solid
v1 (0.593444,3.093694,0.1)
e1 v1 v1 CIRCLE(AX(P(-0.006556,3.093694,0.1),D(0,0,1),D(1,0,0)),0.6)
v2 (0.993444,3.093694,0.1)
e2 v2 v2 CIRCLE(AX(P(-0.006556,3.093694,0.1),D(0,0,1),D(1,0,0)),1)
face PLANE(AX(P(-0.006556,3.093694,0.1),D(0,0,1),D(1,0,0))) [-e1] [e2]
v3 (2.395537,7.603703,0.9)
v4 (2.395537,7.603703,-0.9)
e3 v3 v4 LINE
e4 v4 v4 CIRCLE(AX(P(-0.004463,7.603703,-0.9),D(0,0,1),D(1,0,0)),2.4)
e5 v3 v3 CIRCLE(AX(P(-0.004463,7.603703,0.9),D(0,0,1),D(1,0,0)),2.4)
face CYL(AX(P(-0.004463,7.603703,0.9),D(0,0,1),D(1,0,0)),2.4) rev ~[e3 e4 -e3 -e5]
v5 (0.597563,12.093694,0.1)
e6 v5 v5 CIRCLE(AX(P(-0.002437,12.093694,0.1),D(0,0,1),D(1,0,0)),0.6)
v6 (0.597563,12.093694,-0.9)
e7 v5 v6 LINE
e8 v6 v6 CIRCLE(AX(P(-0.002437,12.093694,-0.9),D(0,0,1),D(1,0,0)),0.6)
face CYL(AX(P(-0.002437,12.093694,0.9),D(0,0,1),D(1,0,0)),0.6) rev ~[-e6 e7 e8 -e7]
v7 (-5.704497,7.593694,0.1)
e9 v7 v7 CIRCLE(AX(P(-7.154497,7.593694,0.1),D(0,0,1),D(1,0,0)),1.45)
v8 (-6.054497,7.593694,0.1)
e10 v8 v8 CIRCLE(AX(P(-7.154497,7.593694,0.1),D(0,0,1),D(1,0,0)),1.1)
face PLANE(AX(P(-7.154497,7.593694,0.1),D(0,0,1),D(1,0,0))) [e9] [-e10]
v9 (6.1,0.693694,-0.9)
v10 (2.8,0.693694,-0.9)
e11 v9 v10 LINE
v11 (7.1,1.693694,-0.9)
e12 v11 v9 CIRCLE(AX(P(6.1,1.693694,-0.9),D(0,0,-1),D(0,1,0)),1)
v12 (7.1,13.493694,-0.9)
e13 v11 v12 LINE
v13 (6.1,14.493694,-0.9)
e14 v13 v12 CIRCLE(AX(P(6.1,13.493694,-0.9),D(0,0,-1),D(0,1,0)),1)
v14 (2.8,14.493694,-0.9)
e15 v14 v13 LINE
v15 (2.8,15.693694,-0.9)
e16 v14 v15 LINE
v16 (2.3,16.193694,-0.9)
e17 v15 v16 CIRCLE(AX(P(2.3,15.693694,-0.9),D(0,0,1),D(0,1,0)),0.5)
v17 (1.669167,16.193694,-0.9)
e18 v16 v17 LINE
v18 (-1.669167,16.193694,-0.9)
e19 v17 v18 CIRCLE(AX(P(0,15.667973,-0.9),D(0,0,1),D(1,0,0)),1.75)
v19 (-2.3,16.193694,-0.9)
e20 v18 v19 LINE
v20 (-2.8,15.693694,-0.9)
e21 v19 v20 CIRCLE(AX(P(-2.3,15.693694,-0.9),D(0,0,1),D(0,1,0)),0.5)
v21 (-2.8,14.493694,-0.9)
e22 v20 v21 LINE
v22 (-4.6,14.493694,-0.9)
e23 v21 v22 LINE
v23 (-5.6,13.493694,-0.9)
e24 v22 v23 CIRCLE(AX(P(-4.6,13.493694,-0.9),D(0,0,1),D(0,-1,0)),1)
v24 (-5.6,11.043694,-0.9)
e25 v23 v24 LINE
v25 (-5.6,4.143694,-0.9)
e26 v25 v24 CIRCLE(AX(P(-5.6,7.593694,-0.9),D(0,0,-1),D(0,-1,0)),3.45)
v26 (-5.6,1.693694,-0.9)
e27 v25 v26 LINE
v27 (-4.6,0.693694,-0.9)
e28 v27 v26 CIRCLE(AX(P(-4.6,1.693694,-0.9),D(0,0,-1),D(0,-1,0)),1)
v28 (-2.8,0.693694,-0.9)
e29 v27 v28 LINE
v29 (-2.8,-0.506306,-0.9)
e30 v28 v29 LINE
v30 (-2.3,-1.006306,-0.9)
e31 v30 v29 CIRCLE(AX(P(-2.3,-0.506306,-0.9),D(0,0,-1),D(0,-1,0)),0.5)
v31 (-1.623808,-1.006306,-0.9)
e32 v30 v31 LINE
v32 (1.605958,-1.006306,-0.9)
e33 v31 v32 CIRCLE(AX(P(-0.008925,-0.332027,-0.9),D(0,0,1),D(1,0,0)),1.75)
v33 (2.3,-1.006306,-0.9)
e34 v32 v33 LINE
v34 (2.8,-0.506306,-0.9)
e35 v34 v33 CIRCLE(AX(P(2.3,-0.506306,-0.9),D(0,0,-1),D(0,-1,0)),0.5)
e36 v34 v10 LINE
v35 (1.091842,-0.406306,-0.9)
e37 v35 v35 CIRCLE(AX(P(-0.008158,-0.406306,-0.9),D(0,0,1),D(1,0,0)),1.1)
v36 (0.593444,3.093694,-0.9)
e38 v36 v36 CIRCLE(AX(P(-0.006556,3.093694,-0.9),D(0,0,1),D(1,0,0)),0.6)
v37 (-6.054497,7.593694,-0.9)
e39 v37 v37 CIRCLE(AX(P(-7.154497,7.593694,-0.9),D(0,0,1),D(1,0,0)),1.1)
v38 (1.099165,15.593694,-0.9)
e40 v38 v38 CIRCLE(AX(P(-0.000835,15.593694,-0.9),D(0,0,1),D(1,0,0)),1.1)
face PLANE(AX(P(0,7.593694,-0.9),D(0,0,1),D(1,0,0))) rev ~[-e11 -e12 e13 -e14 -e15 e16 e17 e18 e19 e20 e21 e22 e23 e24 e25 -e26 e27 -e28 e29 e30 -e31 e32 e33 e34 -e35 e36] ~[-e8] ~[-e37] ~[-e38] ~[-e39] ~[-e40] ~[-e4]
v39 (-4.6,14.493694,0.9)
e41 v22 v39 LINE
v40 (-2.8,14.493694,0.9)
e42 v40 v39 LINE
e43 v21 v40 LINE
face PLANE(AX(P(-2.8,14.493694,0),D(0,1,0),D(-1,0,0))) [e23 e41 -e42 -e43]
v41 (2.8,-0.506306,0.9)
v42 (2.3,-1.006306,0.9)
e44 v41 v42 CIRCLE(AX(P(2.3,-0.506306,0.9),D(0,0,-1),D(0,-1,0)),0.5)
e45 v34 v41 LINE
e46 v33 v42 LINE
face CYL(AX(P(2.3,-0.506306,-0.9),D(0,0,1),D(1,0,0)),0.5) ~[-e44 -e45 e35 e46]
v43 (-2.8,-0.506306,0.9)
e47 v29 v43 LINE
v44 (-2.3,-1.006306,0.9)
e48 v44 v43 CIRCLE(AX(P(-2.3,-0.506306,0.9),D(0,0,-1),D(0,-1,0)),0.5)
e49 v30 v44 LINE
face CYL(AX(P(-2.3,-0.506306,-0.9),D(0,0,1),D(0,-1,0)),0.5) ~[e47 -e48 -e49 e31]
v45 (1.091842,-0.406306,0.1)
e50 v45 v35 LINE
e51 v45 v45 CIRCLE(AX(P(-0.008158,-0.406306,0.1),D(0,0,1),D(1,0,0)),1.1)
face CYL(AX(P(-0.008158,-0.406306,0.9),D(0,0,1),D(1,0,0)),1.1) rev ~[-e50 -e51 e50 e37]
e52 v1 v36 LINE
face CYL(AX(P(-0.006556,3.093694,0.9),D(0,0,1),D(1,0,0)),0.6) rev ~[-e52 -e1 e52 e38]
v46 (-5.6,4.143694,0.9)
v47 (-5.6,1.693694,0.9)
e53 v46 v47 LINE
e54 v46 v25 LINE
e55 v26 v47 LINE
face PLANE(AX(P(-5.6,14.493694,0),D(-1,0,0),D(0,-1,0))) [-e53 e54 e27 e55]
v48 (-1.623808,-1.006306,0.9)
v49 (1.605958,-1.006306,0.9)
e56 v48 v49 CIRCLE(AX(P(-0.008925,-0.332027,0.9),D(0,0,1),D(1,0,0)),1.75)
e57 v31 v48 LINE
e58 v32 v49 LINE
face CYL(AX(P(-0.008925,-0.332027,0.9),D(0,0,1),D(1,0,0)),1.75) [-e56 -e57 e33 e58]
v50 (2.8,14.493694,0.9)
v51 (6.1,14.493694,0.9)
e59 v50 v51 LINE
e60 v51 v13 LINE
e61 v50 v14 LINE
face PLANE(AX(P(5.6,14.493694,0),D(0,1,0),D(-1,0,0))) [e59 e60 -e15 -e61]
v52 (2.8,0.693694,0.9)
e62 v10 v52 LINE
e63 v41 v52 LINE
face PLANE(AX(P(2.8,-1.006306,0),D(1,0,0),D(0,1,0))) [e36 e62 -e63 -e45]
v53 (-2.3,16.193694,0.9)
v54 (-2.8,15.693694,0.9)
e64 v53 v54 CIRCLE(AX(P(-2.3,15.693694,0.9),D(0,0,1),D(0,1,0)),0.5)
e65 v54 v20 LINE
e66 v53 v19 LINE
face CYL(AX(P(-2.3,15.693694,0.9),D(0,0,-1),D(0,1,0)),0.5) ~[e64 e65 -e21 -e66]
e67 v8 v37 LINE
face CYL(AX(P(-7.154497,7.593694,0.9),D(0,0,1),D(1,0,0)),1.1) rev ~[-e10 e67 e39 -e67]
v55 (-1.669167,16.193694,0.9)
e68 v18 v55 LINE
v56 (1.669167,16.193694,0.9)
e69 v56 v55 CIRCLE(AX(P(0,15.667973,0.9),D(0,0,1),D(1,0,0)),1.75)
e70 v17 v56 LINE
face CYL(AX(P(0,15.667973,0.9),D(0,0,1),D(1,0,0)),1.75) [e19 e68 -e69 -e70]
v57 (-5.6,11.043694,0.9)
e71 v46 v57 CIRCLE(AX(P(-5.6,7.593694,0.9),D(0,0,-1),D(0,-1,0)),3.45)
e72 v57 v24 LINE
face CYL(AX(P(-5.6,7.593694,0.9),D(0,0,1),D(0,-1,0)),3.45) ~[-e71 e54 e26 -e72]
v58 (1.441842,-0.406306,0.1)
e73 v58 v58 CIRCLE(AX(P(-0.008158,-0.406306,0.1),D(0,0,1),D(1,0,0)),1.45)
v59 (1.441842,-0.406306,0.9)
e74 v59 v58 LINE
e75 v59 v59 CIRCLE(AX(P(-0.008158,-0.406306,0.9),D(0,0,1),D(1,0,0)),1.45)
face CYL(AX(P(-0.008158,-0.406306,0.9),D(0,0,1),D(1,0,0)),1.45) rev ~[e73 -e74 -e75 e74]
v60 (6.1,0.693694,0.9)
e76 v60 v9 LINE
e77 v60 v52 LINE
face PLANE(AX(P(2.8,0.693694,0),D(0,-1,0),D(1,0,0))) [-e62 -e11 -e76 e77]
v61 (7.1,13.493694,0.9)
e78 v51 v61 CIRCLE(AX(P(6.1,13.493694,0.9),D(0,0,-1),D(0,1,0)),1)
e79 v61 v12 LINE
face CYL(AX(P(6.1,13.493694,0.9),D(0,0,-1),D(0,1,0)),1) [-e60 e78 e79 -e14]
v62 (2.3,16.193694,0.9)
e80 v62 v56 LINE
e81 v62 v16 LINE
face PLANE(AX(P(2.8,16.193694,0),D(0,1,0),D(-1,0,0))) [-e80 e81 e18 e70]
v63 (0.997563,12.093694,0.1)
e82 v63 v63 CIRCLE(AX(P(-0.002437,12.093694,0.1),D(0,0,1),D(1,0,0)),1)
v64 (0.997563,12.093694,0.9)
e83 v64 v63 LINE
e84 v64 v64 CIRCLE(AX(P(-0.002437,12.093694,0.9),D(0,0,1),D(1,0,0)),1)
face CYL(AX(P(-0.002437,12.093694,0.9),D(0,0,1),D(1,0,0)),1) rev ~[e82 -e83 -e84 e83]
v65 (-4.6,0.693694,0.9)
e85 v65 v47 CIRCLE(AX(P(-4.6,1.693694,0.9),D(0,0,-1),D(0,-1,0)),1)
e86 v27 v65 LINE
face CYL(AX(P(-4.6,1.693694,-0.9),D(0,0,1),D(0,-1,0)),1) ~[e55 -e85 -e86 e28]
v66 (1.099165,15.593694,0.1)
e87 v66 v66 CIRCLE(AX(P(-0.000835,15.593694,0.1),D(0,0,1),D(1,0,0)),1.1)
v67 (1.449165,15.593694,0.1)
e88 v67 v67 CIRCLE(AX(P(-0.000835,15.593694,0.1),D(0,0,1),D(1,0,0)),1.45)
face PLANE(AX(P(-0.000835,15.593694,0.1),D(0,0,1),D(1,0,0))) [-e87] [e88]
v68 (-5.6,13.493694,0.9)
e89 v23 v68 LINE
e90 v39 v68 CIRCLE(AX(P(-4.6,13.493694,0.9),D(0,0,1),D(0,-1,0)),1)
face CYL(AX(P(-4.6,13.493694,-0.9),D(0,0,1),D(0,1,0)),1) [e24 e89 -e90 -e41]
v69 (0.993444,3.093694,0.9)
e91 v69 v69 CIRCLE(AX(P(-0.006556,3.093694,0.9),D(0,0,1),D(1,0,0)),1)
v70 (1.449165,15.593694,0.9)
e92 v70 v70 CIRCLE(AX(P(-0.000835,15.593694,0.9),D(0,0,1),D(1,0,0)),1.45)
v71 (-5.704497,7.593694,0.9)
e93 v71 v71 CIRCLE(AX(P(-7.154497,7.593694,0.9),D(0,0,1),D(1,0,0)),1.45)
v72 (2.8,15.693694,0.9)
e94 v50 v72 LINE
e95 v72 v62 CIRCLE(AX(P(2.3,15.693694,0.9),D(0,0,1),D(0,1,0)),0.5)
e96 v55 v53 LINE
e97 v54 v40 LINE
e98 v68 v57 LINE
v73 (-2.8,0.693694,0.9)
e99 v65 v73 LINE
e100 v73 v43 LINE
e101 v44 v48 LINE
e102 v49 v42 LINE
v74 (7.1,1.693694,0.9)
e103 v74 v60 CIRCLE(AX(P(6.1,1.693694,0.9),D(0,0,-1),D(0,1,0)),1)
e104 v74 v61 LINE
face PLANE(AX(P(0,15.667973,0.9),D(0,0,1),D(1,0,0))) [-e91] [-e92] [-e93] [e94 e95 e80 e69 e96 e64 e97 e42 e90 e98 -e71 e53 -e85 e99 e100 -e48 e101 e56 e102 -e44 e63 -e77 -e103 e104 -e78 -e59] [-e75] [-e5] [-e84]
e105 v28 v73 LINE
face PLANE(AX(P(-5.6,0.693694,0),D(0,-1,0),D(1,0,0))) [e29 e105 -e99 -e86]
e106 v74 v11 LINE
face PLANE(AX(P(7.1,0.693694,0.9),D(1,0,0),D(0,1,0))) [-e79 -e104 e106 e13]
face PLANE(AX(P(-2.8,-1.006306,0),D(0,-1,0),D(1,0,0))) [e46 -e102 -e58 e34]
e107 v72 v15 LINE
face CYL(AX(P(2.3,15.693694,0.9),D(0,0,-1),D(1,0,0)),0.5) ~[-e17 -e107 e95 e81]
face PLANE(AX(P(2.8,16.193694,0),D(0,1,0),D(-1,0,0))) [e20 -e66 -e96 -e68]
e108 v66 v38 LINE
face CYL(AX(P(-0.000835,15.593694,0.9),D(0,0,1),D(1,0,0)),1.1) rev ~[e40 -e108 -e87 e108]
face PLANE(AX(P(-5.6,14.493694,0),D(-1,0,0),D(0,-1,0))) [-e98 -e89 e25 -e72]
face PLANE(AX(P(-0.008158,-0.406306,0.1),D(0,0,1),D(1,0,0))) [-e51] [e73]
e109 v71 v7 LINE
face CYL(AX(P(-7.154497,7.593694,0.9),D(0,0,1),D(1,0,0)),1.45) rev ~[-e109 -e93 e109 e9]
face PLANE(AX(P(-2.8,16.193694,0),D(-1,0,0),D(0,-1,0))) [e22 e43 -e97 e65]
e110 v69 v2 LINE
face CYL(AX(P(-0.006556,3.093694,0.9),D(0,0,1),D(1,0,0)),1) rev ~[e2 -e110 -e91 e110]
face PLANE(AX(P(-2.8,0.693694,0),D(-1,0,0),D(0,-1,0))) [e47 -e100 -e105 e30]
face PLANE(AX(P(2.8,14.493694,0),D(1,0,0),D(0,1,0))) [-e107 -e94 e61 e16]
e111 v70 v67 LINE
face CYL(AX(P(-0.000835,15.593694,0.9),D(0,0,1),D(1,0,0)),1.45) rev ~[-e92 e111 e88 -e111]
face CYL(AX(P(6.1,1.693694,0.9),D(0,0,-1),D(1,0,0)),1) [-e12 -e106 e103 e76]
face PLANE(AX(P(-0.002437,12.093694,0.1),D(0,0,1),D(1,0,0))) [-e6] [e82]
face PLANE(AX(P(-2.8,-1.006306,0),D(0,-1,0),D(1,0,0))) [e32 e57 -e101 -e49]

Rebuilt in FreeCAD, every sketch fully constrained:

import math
import FreeCAD as App
import Part
import Sketcher


def edges_at(feature, points):
    """Names of the edges that pass closest to the given points."""
    edges = feature.Shape.Edges
    near = lambda p: min(range(len(edges)), key=lambda i: edges[i].distToShape(Part.Vertex(*p))[0])
    return sorted({f"Edge{near(p) + 1}" for p in points})


def add_polygon(sketch, points):
    """Adds a closed chain of lines whose ends are joined by coincident constraints."""
    first, n = sketch.GeometryCount, len(points)
    for a, b in zip(points, points[1:] + points[:1]):
        sketch.addGeometry(Part.LineSegment(App.Vector(*a, 0), App.Vector(*b, 0)), False)
    for i in range(n):
        sketch.addConstraint(Sketcher.Constraint("Coincident", first + i, 2, first + (i + 1) % n, 1))

doc = App.newDocument("Part")
body = doc.addObject("PartDesign::Body", "Body")

sketch1 = body.newObject("Sketcher::SketchObject", "Sketch")
sketch1.AttachmentSupport = (doc.getObject("XY_Plane"), [""])
sketch1.MapMode = "FlatFace"
add_polygon(sketch1, [(-2.8, 16.193694), (-2.8, 14.493694), (-5.6, 14.493694), (-5.6, 0.693694), (-2.8, 0.693694), (-2.8, -1.006306), (2.8, -1.006306), (2.8, 0.693694), (5.6, 0.693694), (5.6, 14.493694), (2.8, 14.493694), (2.8, 16.193694)])
sketch1.addConstraint([
    Sketcher.Constraint("Vertical", 0),
    Sketcher.Constraint("Horizontal", 1),
    Sketcher.Constraint("Vertical", 2),
    Sketcher.Constraint("Horizontal", 3),
    Sketcher.Constraint("Vertical", 4),
    Sketcher.Constraint("Horizontal", 5),
    Sketcher.Constraint("Vertical", 6),
    Sketcher.Constraint("Horizontal", 7),
    Sketcher.Constraint("Vertical", 8),
    Sketcher.Constraint("Horizontal", 9),
    Sketcher.Constraint("Vertical", 10),
    Sketcher.Constraint("Horizontal", 11),
    Sketcher.Constraint("Symmetric", 3, 2, 6, 2, -2),
    Sketcher.Constraint("Symmetric", 1, 2, 8, 2, -2),
    Sketcher.Constraint("Vertical", 0, 2, 3, 2),
    Sketcher.Constraint("Vertical", 6, 2, 9, 2),
    Sketcher.Constraint("Equal", 0, 4),
    Sketcher.Constraint("DistanceX", 1, 2, 1, 1, 2.8),
    Sketcher.Constraint("DistanceX", 5, 1, 5, 2, 5.6),
    Sketcher.Constraint("DistanceY", 0, 2, 0, 1, 1.7),
    Sketcher.Constraint("DistanceY", 2, 2, 2, 1, 13.8),
    Sketcher.Constraint("DistanceY", -1, 1, 0, 2, 14.493694),
])
pad1 = body.newObject("PartDesign::Pad", "Pad")
pad1.Profile = sketch1
pad1.Length = 1.8
pad1.Midplane = True

sketch2 = body.newObject("Sketcher::SketchObject", "Sketch001")
sketch2.AttachmentSupport = (doc.getObject("XY_Plane"), [""])
sketch2.MapMode = "FlatFace"
sketch2.AttachmentOffset = App.Placement(App.Vector(0, 0, 0.9), App.Rotation())
sketch2.addGeometry([
    Part.Circle(App.Vector(0, 15.667973, 0), App.Vector(0, 0, 1), 1.75),
    Part.Circle(App.Vector(-0.008925, -0.332027, 0), App.Vector(0, 0, 1), 1.75),
], False)
sketch2.addConstraint([
    Sketcher.Constraint("Equal", 0, 1),
    Sketcher.Constraint("PointOnObject", 0, 3, -2),
    Sketcher.Constraint("Diameter", 0, 3.5),
    Sketcher.Constraint("DistanceY", 1, 3, 0, 3, 16.0),
    Sketcher.Constraint("DistanceY", -1, 1, 0, 3, 15.667973),
    Sketcher.Constraint("DistanceX", 1, 3, -1, 1, 0.008925),
])
pad2 = body.newObject("PartDesign::Pad", "Pad001")
pad2.Profile = sketch2
pad2.Length = 1.8
pad2.Reversed = True

sketch3 = body.newObject("Sketcher::SketchObject", "Sketch002")
sketch3.AttachmentSupport = (doc.getObject("XY_Plane"), [""])
sketch3.MapMode = "FlatFace"
sketch3.AttachmentOffset = App.Placement(App.Vector(0, 0, 0.9), App.Rotation())
sketch3.addGeometry(Part.LineSegment(App.Vector(-5.6, 4.143694, 0), App.Vector(-5.6, 11.043694, 0)), False)
sketch3.addGeometry(Part.ArcOfCircle(Part.Circle(App.Vector(-5.6, 7.593694, 0), App.Vector(0, 0, 1), 3.45), math.radians(90), math.radians(270)), False)
add_polygon(sketch3, [(4.1, 14.493694), (4.1, 0.693694), (7.1, 0.693694), (7.1, 14.493694)])
sketch3.addConstraint([
    Sketcher.Constraint("Coincident", 0, 1, 1, 2),
    Sketcher.Constraint("Coincident", 1, 1, 0, 2),
    Sketcher.Constraint("Vertical", 0),
    Sketcher.Constraint("Vertical", 2),
    Sketcher.Constraint("Horizontal", 3),
    Sketcher.Constraint("Vertical", 4),
    Sketcher.Constraint("Horizontal", 5),
    Sketcher.Constraint("Vertical", 1, 3, 0, 1),
    Sketcher.Constraint("DistanceX", 3, 1, 3, 2, 3.0),
    Sketcher.Constraint("Radius", 1, 3.45),
    Sketcher.Constraint("DistanceY", 2, 2, 2, 1, 13.8),
    Sketcher.Constraint("DistanceX", 1, 3, -1, 1, 5.6),
    Sketcher.Constraint("DistanceX", -1, 1, 2, 2, 4.1),
    Sketcher.Constraint("DistanceY", 2, 2, 1, 3, 6.9),
    Sketcher.Constraint("DistanceY", -1, 1, 1, 3, 7.593694),
])
pad3 = body.newObject("PartDesign::Pad", "Pad002")
pad3.Profile = sketch3
pad3.Length = 1.8
pad3.Reversed = True

sketch4 = body.newObject("Sketcher::SketchObject", "Sketch003")
sketch4.AttachmentSupport = (doc.getObject("XY_Plane"), [""])
sketch4.MapMode = "FlatFace"
sketch4.AttachmentOffset = App.Placement(App.Vector(0, 0, 0.9), App.Rotation())
sketch4.addGeometry([
    Part.Circle(App.Vector(-7.154497, 7.593694, 0), App.Vector(0, 0, 1), 1.1),
    Part.Circle(App.Vector(-0.000835, 15.593694, 0), App.Vector(0, 0, 1), 1.1),
    Part.Circle(App.Vector(-0.008158, -0.406306, 0), App.Vector(0, 0, 1), 1.1),
    Part.Circle(App.Vector(-0.002437, 12.093694, 0), App.Vector(0, 0, 1), 0.6),
    Part.Circle(App.Vector(-0.006556, 3.093694, 0), App.Vector(0, 0, 1), 0.6),
], False)
sketch4.addConstraint([
    Sketcher.Constraint("Equal", 0, 1),
    Sketcher.Constraint("Equal", 1, 2),
    Sketcher.Constraint("Equal", 3, 4),
    Sketcher.Constraint("Diameter", 0, 2.2),
    Sketcher.Constraint("Diameter", 3, 1.2),
    Sketcher.Constraint("DistanceY", 0, 3, 1, 3, 8.0),
    Sketcher.Constraint("DistanceY", 2, 3, 0, 3, 8.0),
    Sketcher.Constraint("DistanceY", 4, 3, 3, 3, 9.0),
    Sketcher.Constraint("DistanceY", 3, 3, 1, 3, 3.5),
    Sketcher.Constraint("DistanceX", 3, 3, 1, 3, 0.001602),
    Sketcher.Constraint("DistanceX", 2, 3, 4, 3, 0.001602),
    Sketcher.Constraint("DistanceX", 2, 3, -1, 1, 0.008158),
    Sketcher.Constraint("DistanceX", 0, 3, 2, 3, 7.146339),
    Sketcher.Constraint("DistanceX", 0, 3, 3, 3, 7.15206),
    Sketcher.Constraint("DistanceY", -1, 1, 0, 3, 7.593694),
])
pocket1 = body.newObject("PartDesign::Pocket", "Pocket")
pocket1.Profile = sketch4
pocket1.Length = 1.8

sketch5 = body.newObject("Sketcher::SketchObject", "Sketch004")
sketch5.AttachmentSupport = (doc.getObject("XY_Plane"), [""])
sketch5.MapMode = "FlatFace"
sketch5.AttachmentOffset = App.Placement(App.Vector(0, 0, 0.9), App.Rotation())
sketch5.addGeometry(Part.Circle(App.Vector(-0.004463, 7.603703, 0), App.Vector(0, 0, 1), 2.4), False)
sketch5.addConstraint([
    Sketcher.Constraint("Diameter", 0, 4.8),
    Sketcher.Constraint("DistanceX", 0, 3, -1, 1, 0.004463),
    Sketcher.Constraint("DistanceY", -1, 1, 0, 3, 7.603703),
])
pocket2 = body.newObject("PartDesign::Pocket", "Pocket001")
pocket2.Profile = sketch5
pocket2.Length = 1.8

sketch6 = body.newObject("Sketcher::SketchObject", "Sketch005")
sketch6.AttachmentSupport = (doc.getObject("XY_Plane"), [""])
sketch6.MapMode = "FlatFace"
sketch6.AttachmentOffset = App.Placement(App.Vector(0, 0, 0.9), App.Rotation())
sketch6.addGeometry([
    Part.Circle(App.Vector(-0.002437, 12.093694, 0), App.Vector(0, 0, 1), 1),
    Part.Circle(App.Vector(-0.006556, 3.093694, 0), App.Vector(0, 0, 1), 1),
    Part.Circle(App.Vector(-0.000835, 15.593694, 0), App.Vector(0, 0, 1), 1.45),
    Part.Circle(App.Vector(-0.008158, -0.406306, 0), App.Vector(0, 0, 1), 1.45),
    Part.Circle(App.Vector(-7.154497, 7.593694, 0), App.Vector(0, 0, 1), 1.45),
], False)
sketch6.addConstraint([
    Sketcher.Constraint("Equal", 0, 1),
    Sketcher.Constraint("Equal", 2, 3),
    Sketcher.Constraint("Equal", 3, 4),
    Sketcher.Constraint("Diameter", 0, 2.0),
    Sketcher.Constraint("Diameter", 2, 2.9),
    Sketcher.Constraint("DistanceY", 1, 3, 0, 3, 9.0),
    Sketcher.Constraint("DistanceY", 3, 3, 2, 3, 16.0),
    Sketcher.Constraint("DistanceY", 3, 3, 4, 3, 8.0),
    Sketcher.Constraint("DistanceY", 0, 3, 2, 3, 3.5),
    Sketcher.Constraint("DistanceX", 0, 3, 2, 3, 0.001602),
    Sketcher.Constraint("DistanceX", 3, 3, 1, 3, 0.001602),
    Sketcher.Constraint("DistanceX", 3, 3, -1, 1, 0.008158),
    Sketcher.Constraint("DistanceX", 1, 3, 0, 3, 0.004119),
    Sketcher.Constraint("DistanceX", 4, 3, 1, 3, 7.147941),
    Sketcher.Constraint("DistanceY", -1, 1, 0, 3, 12.093694),
])
pocket3 = body.newObject("PartDesign::Pocket", "Pocket002")
pocket3.Profile = sketch6
pocket3.Length = 0.8
doc.recompute()

fillet = body.newObject("PartDesign::Fillet", "Fillet")
fillet.Base = (pocket3, edges_at(pocket3, [
    (-5.6, 0.694, 0),
    (-5.6, 14.494, 0),
    (7.1, 0.694, 0),
    (7.1, 14.494, 0),
]))
fillet.Radius = 1
doc.recompute()

fillet2 = body.newObject("PartDesign::Fillet", "Fillet001")
fillet2.Base = (fillet, edges_at(fillet, [
    (2.8, 16.194, 0),
    (2.8, -1.006, 0),
    (-2.8, -1.006, 0),
    (-2.8, 16.194, 0),
]))
fillet2.Radius = 0.5

doc.recompute()
